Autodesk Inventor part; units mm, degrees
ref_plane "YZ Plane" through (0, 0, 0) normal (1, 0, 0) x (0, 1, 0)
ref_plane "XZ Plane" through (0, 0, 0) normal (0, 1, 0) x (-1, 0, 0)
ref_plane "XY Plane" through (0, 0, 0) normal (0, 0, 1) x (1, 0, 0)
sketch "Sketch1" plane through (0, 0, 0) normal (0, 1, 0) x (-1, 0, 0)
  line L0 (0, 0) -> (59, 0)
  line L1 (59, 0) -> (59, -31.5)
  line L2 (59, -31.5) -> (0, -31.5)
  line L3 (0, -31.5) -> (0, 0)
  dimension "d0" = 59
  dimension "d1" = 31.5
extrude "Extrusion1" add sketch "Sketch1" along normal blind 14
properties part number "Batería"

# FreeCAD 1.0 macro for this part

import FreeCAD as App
import Part
import Sketcher


def add_polygon(sketch, points):
    """Adds a closed chain of lines whose ends are joined by coincident constraints."""
    first, n = sketch.GeometryCount, len(points)
    for a, b in zip(points, points[1:] + points[:1]):
        sketch.addGeometry(Part.LineSegment(App.Vector(*a, 0), App.Vector(*b, 0)), False)
    for i in range(n):
        sketch.addConstraint(Sketcher.Constraint("Coincident", first + i, 2, first + (i + 1) % n, 1))

doc = App.newDocument("Part")
params = doc.addObject("Spreadsheet::Sheet", "Params")
for row, (alias, value) in enumerate([
    ("sketch1_width", "59 mm"),
    ("sketch1_height", "31.5 mm"),
    ("pad1_length", "14 mm"),
], start=1):
    params.set(f"A{row}", alias)
    params.set(f"B{row}", "=" + value)
    params.setAlias(f"B{row}", alias)

body = doc.addObject("PartDesign::Body", "Body")

sketch1 = body.newObject("Sketcher::SketchObject", "Sketch")
sketch1.AttachmentSupport = (doc.getObject("XZ_Plane"), [""])
sketch1.MapMode = "FlatFace"
add_polygon(sketch1, [(-59, 0), (0, 0), (0, -32), (-59, -32)])
sketch1.addConstraint([
    Sketcher.Constraint("Horizontal", 0),
    Sketcher.Constraint("Vertical", 1),
    Sketcher.Constraint("Horizontal", 2),
    Sketcher.Constraint("Vertical", 3),
    Sketcher.Constraint("Coincident", 0, 2, -1, 1),
    Sketcher.Constraint("DistanceX", 0, 1, 0, 2, 59.0),
    Sketcher.Constraint("DistanceY", 1, 2, 1, 1, 31.5),
])
sketch1.setExpression("Constraints[9]", "Params.sketch1_width")
sketch1.setExpression("Constraints[10]", "Params.sketch1_height")
pad1 = body.newObject("PartDesign::Pad", "Pad")
pad1.Profile = sketch1
pad1.setExpression("Length", "Params.pad1_length")
pad1.Reversed = True

doc.recompute()
